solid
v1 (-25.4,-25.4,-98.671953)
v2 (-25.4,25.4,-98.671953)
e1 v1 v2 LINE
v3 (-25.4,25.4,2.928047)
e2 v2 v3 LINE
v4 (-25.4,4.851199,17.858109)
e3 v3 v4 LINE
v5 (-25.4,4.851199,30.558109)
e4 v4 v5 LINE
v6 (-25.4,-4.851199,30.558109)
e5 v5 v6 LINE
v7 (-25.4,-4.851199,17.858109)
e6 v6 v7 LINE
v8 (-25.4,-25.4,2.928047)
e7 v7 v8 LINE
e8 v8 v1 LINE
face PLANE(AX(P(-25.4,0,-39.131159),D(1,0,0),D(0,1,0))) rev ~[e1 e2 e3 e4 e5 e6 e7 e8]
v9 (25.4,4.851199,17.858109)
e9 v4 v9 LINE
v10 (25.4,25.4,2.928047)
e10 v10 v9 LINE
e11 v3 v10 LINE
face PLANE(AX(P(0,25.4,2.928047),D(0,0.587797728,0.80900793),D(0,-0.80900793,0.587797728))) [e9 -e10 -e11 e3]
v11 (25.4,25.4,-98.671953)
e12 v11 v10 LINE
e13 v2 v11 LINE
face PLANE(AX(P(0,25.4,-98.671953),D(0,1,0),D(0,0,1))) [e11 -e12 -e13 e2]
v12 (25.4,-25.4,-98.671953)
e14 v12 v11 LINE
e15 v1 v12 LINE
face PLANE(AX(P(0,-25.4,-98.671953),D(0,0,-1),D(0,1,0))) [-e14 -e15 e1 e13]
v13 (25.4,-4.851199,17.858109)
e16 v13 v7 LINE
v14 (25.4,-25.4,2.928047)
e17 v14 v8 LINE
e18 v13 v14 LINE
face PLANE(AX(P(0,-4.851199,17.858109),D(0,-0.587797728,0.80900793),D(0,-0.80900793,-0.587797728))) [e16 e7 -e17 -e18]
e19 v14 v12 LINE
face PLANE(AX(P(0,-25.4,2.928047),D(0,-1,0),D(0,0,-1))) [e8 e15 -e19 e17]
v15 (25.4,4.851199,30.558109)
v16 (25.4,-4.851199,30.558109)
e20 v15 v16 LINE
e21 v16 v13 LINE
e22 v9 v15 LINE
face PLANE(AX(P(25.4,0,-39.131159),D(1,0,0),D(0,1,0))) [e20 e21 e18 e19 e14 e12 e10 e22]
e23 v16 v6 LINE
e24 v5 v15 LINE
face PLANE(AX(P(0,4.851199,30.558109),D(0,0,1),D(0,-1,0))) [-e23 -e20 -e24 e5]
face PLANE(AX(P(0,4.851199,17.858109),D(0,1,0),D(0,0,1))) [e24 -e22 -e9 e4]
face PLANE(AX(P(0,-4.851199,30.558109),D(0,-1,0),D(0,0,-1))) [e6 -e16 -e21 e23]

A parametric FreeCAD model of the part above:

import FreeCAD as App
import Part
import Sketcher
from FreeCAD import Vector
Q = App.Units.Quantity

doc = App.newDocument("Part")
body = doc.addObject("PartDesign::Body", "Body")

# Sketch on YZ plane
sketch1 = body.newObject("Sketcher::SketchObject", "Sketch")
sketch1.AttachmentSupport = (doc.getObject("YZ_Plane"), [""])
sketch1.MapMode = "FlatFace"
sketch1.addGeometry(Part.LineSegment(Vector(-25, 3, 0), Vector(-25, -99, 0)), False)
sketch1.addGeometry(Part.LineSegment(Vector(-25, -99, 0), Vector(25, -99, 0)), False)
sketch1.addGeometry(Part.LineSegment(Vector(25, -99, 0), Vector(25, 3, 0)), False)
sketch1.addGeometry(Part.LineSegment(Vector(25, 3, 0), Vector(5, 18, 0)), False)
sketch1.addGeometry(Part.LineSegment(Vector(5, 18, 0), Vector(5, 31, 0)), False)
sketch1.addGeometry(Part.LineSegment(Vector(5, 31, 0), Vector(-5, 31, 0)), False)
sketch1.addGeometry(Part.LineSegment(Vector(-5, 31, 0), Vector(-5, 18, 0)), False)
sketch1.addGeometry(Part.LineSegment(Vector(-5, 18, 0), Vector(-25, 3, 0)), False)
sketch1.addConstraint(Sketcher.Constraint("Coincident", 0, 2, 1, 1))
sketch1.addConstraint(Sketcher.Constraint("Coincident", 1, 2, 2, 1))
sketch1.addConstraint(Sketcher.Constraint("Coincident", 2, 2, 3, 1))
sketch1.addConstraint(Sketcher.Constraint("Coincident", 3, 2, 4, 1))
sketch1.addConstraint(Sketcher.Constraint("Coincident", 4, 2, 5, 1))
sketch1.addConstraint(Sketcher.Constraint("Coincident", 5, 2, 6, 1))
sketch1.addConstraint(Sketcher.Constraint("Coincident", 6, 2, 7, 1))
sketch1.addConstraint(Sketcher.Constraint("Coincident", 7, 2, 0, 1))
sketch1.addConstraint(Sketcher.Constraint("Vertical", 0))
sketch1.addConstraint(Sketcher.Constraint("Horizontal", 1))
sketch1.addConstraint(Sketcher.Constraint("Vertical", 2))
sketch1.addConstraint(Sketcher.Constraint("Vertical", 4))
sketch1.addConstraint(Sketcher.Constraint("Horizontal", 5))
sketch1.addConstraint(Sketcher.Constraint("Vertical", 6))
sketch1.addConstraint(Sketcher.Constraint("Symmetric", 3, 2, 6, 2, -2))
sketch1.addConstraint(Sketcher.Constraint("Symmetric", 2, 2, 7, 2, -2))
sketch1.addConstraint(Sketcher.Constraint("DistanceX", 1, 1, 1, 2, Q("2 in")))
sketch1.addConstraint(Sketcher.Constraint("DistanceY", 0, 2, 0, 1, Q("4 in")))
sketch1.addConstraint(Sketcher.Constraint("Distance", 3, Q("1 in")))
sketch1.addConstraint(Sketcher.Constraint("DistanceY", 4, 1, 4, 2, Q("0.5 in")))
sketch1.addConstraint(Sketcher.Constraint("DistanceX", -1, 1, 3, 2, 4.851199))
sketch1.addConstraint(Sketcher.Constraint("DistanceY", -1, 1, 3, 2, 17.858109))
pad1 = body.newObject("PartDesign::Pad", "Pad")
pad1.Profile = sketch1
pad1.Type = "TwoLengths"
pad1.Length = Q("1 in")
pad1.Length2 = Q("1 in")

doc.recompute()
